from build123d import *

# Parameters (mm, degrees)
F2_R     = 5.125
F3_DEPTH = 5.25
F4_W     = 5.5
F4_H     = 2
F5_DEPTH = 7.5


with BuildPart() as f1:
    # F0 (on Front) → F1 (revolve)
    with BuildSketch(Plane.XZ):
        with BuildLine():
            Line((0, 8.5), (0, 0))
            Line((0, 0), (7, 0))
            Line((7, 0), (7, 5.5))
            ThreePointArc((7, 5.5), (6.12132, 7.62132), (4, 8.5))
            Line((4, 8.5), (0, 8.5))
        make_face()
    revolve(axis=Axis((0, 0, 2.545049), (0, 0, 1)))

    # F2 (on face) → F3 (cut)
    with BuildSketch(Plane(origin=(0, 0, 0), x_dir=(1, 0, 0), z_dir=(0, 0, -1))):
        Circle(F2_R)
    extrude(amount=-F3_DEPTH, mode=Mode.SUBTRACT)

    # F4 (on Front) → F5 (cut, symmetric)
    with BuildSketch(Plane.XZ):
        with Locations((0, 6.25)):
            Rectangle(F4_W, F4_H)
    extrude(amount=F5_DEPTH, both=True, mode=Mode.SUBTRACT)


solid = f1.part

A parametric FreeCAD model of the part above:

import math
import FreeCAD as App
import Part
import Sketcher


def add_polygon(sketch, points):
    """Adds a closed chain of lines whose ends are joined by coincident constraints."""
    first, n = sketch.GeometryCount, len(points)
    for a, b in zip(points, points[1:] + points[:1]):
        sketch.addGeometry(Part.LineSegment(App.Vector(*a, 0), App.Vector(*b, 0)), False)
    for i in range(n):
        sketch.addConstraint(Sketcher.Constraint("Coincident", first + i, 2, first + (i + 1) % n, 1))

doc = App.newDocument("Part")
body = doc.addObject("PartDesign::Body", "Body")

# Sketch on XZ plane
sketch1 = body.newObject("Sketcher::SketchObject", "Sketch")
sketch1.AttachmentSupport = (doc.getObject("XZ_Plane"), [""])
sketch1.MapMode = "FlatFace"
sketch1.addGeometry([
    Part.LineSegment(App.Vector(0, 8.5, 0), App.Vector(0, 0, 0)),  # 0
    Part.LineSegment(App.Vector(0, 0, 0), App.Vector(7, 0, 0)),  # 1
    Part.LineSegment(App.Vector(7, 0, 0), App.Vector(7, 5.5, 0)),  # 2
    Part.ArcOfCircle(Part.Circle(App.Vector(4, 5.5, 0), App.Vector(0, 0, 1), 3), math.radians(0), math.radians(90)),  # 3
    Part.LineSegment(App.Vector(4, 8.5, 0), App.Vector(0, 8.5, 0)),  # 4
], False)
sketch1.addConstraint([
    Sketcher.Constraint("Coincident", 0, 2, 1, 1),
    Sketcher.Constraint("Coincident", 1, 2, 2, 1),
    Sketcher.Constraint("Tangent", 2, 2, 3, 1),
    Sketcher.Constraint("Tangent", 3, 2, 4, 1),
    Sketcher.Constraint("Coincident", 4, 2, 0, 1),
    Sketcher.Constraint("Vertical", 0),
    Sketcher.Constraint("Horizontal", 1),
    Sketcher.Constraint("Vertical", 2),
    Sketcher.Constraint("Horizontal", 4),
    Sketcher.Constraint("Coincident", 0, 2, -1, 1),
    Sketcher.Constraint("Radius", 3, 3.000001),
    Sketcher.Constraint("DistanceX", 1, 1, 1, 2, 7.0),
    Sketcher.Constraint("DistanceY", 0, 2, 0, 1, 8.5),
])
revolution = body.newObject("PartDesign::Revolution", "Revolution")
revolution.Profile = sketch1
revolution.ReferenceAxis = (sketch1, ["V_Axis"])
revolution.Angle = 360

# Sketch on XY plane
sketch2 = body.newObject("Sketcher::SketchObject", "Sketch001")
sketch2.AttachmentSupport = (doc.getObject("XY_Plane"), [""])
sketch2.MapMode = "FlatFace"
sketch2.addGeometry(Part.Circle(App.Vector(0, 0, 0), App.Vector(0, 0, 1), 5), False)
sketch2.addConstraint([
    Sketcher.Constraint("Coincident", 0, 3, -1, 1),
    Sketcher.Constraint("Diameter", 0, 10.25),
])
pocket1 = body.newObject("PartDesign::Pocket", "Pocket")
pocket1.Profile = sketch2
pocket1.Length = 5.25
pocket1.Reversed = True

# Sketch on XZ plane
sketch3 = body.newObject("Sketcher::SketchObject", "Sketch002")
sketch3.AttachmentSupport = (doc.getObject("XZ_Plane"), [""])
sketch3.MapMode = "FlatFace"
add_polygon(sketch3, [(-2.8, 7.2), (-2.8, 5.2), (2.8, 5.2), (2.8, 7.2)])  # lines 0-3
sketch3.addConstraint([
    Sketcher.Constraint("Vertical", 0),
    Sketcher.Constraint("Horizontal", 1),
    Sketcher.Constraint("Vertical", 2),
    Sketcher.Constraint("Horizontal", 3),
    Sketcher.Constraint("DistanceY", 0, 2, 0, 1, 2.0),
    Sketcher.Constraint("DistanceX", 1, 1, 1, 2, 5.5),
    Sketcher.Constraint("DistanceX", 0, 2, -1, 1, 2.75),
    Sketcher.Constraint("DistanceY", -1, 1, 0, 2, 5.25),
])
pocket2 = body.newObject("PartDesign::Pocket", "Pocket001")
pocket2.Profile = sketch3
pocket2.Length = 15
pocket2.Midplane = True

doc.recompute()
